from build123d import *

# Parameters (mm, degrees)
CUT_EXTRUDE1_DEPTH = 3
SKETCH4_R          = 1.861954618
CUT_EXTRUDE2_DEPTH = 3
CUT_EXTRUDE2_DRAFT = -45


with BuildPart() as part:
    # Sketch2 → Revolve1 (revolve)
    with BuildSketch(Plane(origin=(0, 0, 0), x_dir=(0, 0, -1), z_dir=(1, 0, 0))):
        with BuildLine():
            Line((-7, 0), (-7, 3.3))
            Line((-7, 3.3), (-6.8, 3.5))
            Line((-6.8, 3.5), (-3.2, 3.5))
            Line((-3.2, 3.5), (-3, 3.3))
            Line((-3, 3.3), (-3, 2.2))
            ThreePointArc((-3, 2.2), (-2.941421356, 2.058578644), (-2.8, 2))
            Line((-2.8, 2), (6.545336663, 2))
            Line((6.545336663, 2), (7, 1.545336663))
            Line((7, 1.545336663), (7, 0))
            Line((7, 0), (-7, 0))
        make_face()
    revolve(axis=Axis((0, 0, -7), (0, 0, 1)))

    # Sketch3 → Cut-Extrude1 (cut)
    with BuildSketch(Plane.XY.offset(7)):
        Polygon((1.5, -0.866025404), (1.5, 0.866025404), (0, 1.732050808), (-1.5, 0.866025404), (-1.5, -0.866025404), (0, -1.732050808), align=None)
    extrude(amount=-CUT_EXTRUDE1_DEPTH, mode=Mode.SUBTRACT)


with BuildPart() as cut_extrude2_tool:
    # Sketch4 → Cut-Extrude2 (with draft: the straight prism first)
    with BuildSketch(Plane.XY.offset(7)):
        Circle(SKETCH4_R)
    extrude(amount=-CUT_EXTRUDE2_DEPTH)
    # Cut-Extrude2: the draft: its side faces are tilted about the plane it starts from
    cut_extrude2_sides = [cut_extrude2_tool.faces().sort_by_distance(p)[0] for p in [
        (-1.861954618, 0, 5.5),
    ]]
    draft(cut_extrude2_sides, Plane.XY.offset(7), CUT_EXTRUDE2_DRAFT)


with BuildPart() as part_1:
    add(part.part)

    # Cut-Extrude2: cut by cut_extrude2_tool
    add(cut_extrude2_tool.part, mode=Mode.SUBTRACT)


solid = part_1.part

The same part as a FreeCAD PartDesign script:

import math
import FreeCAD as App
import Part
import Sketcher
from FreeCAD import Vector
Q = App.Units.Quantity


def faces_at(feature, points):
    """Names of the faces that lie closest to the given points."""
    faces = feature.Shape.Faces
    near = lambda p: min(range(len(faces)), key=lambda i: faces[i].distToShape(Part.Vertex(*p))[0])
    return sorted({f"Face{near(p) + 1}" for p in points})


def add_polygon(sketch, points):
    """Adds a closed chain of lines whose ends are joined by coincident constraints."""
    first, n = sketch.GeometryCount, len(points)
    for a, b in zip(points, points[1:] + points[:1]):
        sketch.addGeometry(Part.LineSegment(App.Vector(*a, 0), App.Vector(*b, 0)), False)
    for i in range(n):
        sketch.addConstraint(Sketcher.Constraint("Coincident", first + i, 2, first + (i + 1) % n, 1))

doc = App.newDocument("Part")
body = doc.addObject("PartDesign::Body", "Body")

# Sketch on YZ plane
sketch1 = doc.addObject("Sketcher::SketchObject", "Sketch")
body.addObject(sketch1)
sketch1.AttachmentSupport = (doc.YZ_Plane, [""])
sketch1.MapMode = "FlatFace"
sketch1.addGeometry([
    Part.LineSegment(Vector(3.3, 7, 0), Vector(0, 7, 0)),  # 0
    Part.LineSegment(Vector(0, 7, 0), Vector(0, -7, 0)),  # 1
    Part.LineSegment(Vector(0, -7, 0), Vector(1.55, -7, 0)),  # 2
    Part.LineSegment(Vector(1.55, -7, 0), Vector(2, -6.55, 0)),  # 3
    Part.LineSegment(Vector(2, -6.55, 0), Vector(2, 2.8, 0)),  # 4
    Part.ArcOfCircle(Part.Circle(Vector(2.2, 2.8, 0), Vector(0, 0, 1), 0.2), math.radians(90), math.radians(180)),  # 5
    Part.LineSegment(Vector(2.2, 3, 0), Vector(3.3, 3, 0)),  # 6
    Part.LineSegment(Vector(3.3, 3, 0), Vector(3.5, 3.2, 0)),  # 7
    Part.LineSegment(Vector(3.5, 3.2, 0), Vector(3.5, 6.8, 0)),  # 8
    Part.LineSegment(Vector(3.5, 6.8, 0), Vector(3.3, 7, 0)),  # 9
], False)
sketch1.addConstraint([
    Sketcher.Constraint("Coincident", 0, 2, 1, 1),
    Sketcher.Constraint("Coincident", 1, 2, 2, 1),
    Sketcher.Constraint("Coincident", 2, 2, 3, 1),
    Sketcher.Constraint("Coincident", 3, 2, 4, 1),
    Sketcher.Constraint("Tangent", 4, 2, 5, 2),
    Sketcher.Constraint("Tangent", 5, 1, 6, 1),
    Sketcher.Constraint("Coincident", 6, 2, 7, 1),
    Sketcher.Constraint("Coincident", 7, 2, 8, 1),
    Sketcher.Constraint("Coincident", 8, 2, 9, 1),
    Sketcher.Constraint("Coincident", 9, 2, 0, 1),
    Sketcher.Constraint("Horizontal", 0),
    Sketcher.Constraint("Vertical", 1),
    Sketcher.Constraint("Horizontal", 2),
    Sketcher.Constraint("Vertical", 4),
    Sketcher.Constraint("Horizontal", 6),
    Sketcher.Constraint("Vertical", 8),
    Sketcher.Constraint("Symmetric", 0, 2, 1, 2, -1, 1),
    Sketcher.Constraint("Parallel", 3, 7),
    Sketcher.Constraint("Perpendicular", 7, 9),
    Sketcher.Constraint("Vertical", 6, 2, 9, 2),
    Sketcher.Constraint("Equal", 7, 9),
    Sketcher.Constraint("Radius", 5, 0.2),
    Sketcher.Constraint("DistanceY", 1, 2, 1, 1, 14.0),
    Sketcher.Constraint("DistanceX", 0, 2, 0, 1, 3.3),
    Sketcher.Constraint("DistanceX", 6, 1, 6, 2, 1.1),
    Sketcher.Constraint("DistanceY", 8, 1, 8, 2, 3.6),
    Sketcher.Constraint("DistanceY", -1, 1, 5, 1, 3.0),
    Sketcher.Constraint("Distance", 3, 0.642991),
])
revolution = doc.addObject("PartDesign::Revolution", "Revolution")
body.addObject(revolution)
revolution.Profile = sketch1
revolution.ReferenceAxis = (sketch1, ["V_Axis"])
revolution.Angle = 360

# Sketch on XY plane
sketch2 = doc.addObject("Sketcher::SketchObject", "Sketch001")
body.addObject(sketch2)
sketch2.AttachmentSupport = (doc.XY_Plane, [""])
sketch2.MapMode = "FlatFace"
sketch2.AttachmentOffset = App.Placement(Vector(0, 0, 7), App.Rotation())
add_polygon(sketch2, [(1.5, -0.9), (1.5, 0.9), (0, 1.7), (-1.5, 0.9), (-1.5, -0.9), (0, -1.7)])  # lines 0-5
sketch2.addConstraint([
    Sketcher.Constraint("Vertical", 0),
    Sketcher.Constraint("Vertical", 3),
    Sketcher.Constraint("Symmetric", 0, 2, 3, 2, -1, 1),
    Sketcher.Constraint("Symmetric", 1, 2, 4, 2, -1, 1),
    Sketcher.Constraint("PointOnObject", 1, 2, -2),
    Sketcher.Constraint("Parallel", 2, 5),
    Sketcher.Constraint("Horizontal", 0, 2, 2, 2),
    Sketcher.Constraint("Angle", 1, Q("150 deg")),
    Sketcher.Constraint("DistanceX", 2, 2, 0, 2, 3.0),
    Sketcher.Constraint("DistanceY", 0, 1, 0, 2, 1.732051),
])
pocket1 = doc.addObject("PartDesign::Pocket", "Pocket")
body.addObject(pocket1)
pocket1.Profile = sketch2
pocket1.Length = 3
body2 = doc.addObject("PartDesign::Body", "Body001")

# Sketch on XY plane
sketch3 = doc.addObject("Sketcher::SketchObject", "Sketch002")
body2.addObject(sketch3)
sketch3.AttachmentSupport = (doc.getObject("XY_Plane001"), [""])
sketch3.MapMode = "FlatFace"
sketch3.AttachmentOffset = App.Placement(Vector(0, 0, 7), App.Rotation())
sketch3.addGeometry(Part.Circle(Vector(0, 0, 0), Vector(0, 0, 1), 1.9), False)
sketch3.addConstraint([
    Sketcher.Constraint("Coincident", 0, 3, -1, 1),
    Sketcher.Constraint("Diameter", 0, 3.723909),
])
pad1 = doc.addObject("PartDesign::Pad", "Pad")
body2.addObject(pad1)
pad1.Profile = sketch3
pad1.Length = 3
pad1.Reversed = True
doc.recompute()

datumplane = doc.addObject("PartDesign::Plane", "DatumPlane")
body2.addObject(datumplane)
datumplane.AttachmentSupport = (doc.getObject("XY_Plane001"), [""])
datumplane.MapMode = "FlatFace"
datumplane.AttachmentOffset = App.Placement(Vector(0, 0, 7), App.Rotation())
draft = doc.addObject("PartDesign::Draft", "Draft")
body2.addObject(draft)
draft.Base = (pad1, faces_at(pad1, [(-1.862, 0, 5.5)]))
draft.NeutralPlane = (datumplane, [""])
draft.Angle = 45
draft.Reversed = True
doc.recompute()

boolean = doc.addObject("PartDesign::Boolean", "Boolean")
body.addObject(boolean)
boolean.Type = "Cut"
boolean.addObjects([body2])

doc.recompute()
